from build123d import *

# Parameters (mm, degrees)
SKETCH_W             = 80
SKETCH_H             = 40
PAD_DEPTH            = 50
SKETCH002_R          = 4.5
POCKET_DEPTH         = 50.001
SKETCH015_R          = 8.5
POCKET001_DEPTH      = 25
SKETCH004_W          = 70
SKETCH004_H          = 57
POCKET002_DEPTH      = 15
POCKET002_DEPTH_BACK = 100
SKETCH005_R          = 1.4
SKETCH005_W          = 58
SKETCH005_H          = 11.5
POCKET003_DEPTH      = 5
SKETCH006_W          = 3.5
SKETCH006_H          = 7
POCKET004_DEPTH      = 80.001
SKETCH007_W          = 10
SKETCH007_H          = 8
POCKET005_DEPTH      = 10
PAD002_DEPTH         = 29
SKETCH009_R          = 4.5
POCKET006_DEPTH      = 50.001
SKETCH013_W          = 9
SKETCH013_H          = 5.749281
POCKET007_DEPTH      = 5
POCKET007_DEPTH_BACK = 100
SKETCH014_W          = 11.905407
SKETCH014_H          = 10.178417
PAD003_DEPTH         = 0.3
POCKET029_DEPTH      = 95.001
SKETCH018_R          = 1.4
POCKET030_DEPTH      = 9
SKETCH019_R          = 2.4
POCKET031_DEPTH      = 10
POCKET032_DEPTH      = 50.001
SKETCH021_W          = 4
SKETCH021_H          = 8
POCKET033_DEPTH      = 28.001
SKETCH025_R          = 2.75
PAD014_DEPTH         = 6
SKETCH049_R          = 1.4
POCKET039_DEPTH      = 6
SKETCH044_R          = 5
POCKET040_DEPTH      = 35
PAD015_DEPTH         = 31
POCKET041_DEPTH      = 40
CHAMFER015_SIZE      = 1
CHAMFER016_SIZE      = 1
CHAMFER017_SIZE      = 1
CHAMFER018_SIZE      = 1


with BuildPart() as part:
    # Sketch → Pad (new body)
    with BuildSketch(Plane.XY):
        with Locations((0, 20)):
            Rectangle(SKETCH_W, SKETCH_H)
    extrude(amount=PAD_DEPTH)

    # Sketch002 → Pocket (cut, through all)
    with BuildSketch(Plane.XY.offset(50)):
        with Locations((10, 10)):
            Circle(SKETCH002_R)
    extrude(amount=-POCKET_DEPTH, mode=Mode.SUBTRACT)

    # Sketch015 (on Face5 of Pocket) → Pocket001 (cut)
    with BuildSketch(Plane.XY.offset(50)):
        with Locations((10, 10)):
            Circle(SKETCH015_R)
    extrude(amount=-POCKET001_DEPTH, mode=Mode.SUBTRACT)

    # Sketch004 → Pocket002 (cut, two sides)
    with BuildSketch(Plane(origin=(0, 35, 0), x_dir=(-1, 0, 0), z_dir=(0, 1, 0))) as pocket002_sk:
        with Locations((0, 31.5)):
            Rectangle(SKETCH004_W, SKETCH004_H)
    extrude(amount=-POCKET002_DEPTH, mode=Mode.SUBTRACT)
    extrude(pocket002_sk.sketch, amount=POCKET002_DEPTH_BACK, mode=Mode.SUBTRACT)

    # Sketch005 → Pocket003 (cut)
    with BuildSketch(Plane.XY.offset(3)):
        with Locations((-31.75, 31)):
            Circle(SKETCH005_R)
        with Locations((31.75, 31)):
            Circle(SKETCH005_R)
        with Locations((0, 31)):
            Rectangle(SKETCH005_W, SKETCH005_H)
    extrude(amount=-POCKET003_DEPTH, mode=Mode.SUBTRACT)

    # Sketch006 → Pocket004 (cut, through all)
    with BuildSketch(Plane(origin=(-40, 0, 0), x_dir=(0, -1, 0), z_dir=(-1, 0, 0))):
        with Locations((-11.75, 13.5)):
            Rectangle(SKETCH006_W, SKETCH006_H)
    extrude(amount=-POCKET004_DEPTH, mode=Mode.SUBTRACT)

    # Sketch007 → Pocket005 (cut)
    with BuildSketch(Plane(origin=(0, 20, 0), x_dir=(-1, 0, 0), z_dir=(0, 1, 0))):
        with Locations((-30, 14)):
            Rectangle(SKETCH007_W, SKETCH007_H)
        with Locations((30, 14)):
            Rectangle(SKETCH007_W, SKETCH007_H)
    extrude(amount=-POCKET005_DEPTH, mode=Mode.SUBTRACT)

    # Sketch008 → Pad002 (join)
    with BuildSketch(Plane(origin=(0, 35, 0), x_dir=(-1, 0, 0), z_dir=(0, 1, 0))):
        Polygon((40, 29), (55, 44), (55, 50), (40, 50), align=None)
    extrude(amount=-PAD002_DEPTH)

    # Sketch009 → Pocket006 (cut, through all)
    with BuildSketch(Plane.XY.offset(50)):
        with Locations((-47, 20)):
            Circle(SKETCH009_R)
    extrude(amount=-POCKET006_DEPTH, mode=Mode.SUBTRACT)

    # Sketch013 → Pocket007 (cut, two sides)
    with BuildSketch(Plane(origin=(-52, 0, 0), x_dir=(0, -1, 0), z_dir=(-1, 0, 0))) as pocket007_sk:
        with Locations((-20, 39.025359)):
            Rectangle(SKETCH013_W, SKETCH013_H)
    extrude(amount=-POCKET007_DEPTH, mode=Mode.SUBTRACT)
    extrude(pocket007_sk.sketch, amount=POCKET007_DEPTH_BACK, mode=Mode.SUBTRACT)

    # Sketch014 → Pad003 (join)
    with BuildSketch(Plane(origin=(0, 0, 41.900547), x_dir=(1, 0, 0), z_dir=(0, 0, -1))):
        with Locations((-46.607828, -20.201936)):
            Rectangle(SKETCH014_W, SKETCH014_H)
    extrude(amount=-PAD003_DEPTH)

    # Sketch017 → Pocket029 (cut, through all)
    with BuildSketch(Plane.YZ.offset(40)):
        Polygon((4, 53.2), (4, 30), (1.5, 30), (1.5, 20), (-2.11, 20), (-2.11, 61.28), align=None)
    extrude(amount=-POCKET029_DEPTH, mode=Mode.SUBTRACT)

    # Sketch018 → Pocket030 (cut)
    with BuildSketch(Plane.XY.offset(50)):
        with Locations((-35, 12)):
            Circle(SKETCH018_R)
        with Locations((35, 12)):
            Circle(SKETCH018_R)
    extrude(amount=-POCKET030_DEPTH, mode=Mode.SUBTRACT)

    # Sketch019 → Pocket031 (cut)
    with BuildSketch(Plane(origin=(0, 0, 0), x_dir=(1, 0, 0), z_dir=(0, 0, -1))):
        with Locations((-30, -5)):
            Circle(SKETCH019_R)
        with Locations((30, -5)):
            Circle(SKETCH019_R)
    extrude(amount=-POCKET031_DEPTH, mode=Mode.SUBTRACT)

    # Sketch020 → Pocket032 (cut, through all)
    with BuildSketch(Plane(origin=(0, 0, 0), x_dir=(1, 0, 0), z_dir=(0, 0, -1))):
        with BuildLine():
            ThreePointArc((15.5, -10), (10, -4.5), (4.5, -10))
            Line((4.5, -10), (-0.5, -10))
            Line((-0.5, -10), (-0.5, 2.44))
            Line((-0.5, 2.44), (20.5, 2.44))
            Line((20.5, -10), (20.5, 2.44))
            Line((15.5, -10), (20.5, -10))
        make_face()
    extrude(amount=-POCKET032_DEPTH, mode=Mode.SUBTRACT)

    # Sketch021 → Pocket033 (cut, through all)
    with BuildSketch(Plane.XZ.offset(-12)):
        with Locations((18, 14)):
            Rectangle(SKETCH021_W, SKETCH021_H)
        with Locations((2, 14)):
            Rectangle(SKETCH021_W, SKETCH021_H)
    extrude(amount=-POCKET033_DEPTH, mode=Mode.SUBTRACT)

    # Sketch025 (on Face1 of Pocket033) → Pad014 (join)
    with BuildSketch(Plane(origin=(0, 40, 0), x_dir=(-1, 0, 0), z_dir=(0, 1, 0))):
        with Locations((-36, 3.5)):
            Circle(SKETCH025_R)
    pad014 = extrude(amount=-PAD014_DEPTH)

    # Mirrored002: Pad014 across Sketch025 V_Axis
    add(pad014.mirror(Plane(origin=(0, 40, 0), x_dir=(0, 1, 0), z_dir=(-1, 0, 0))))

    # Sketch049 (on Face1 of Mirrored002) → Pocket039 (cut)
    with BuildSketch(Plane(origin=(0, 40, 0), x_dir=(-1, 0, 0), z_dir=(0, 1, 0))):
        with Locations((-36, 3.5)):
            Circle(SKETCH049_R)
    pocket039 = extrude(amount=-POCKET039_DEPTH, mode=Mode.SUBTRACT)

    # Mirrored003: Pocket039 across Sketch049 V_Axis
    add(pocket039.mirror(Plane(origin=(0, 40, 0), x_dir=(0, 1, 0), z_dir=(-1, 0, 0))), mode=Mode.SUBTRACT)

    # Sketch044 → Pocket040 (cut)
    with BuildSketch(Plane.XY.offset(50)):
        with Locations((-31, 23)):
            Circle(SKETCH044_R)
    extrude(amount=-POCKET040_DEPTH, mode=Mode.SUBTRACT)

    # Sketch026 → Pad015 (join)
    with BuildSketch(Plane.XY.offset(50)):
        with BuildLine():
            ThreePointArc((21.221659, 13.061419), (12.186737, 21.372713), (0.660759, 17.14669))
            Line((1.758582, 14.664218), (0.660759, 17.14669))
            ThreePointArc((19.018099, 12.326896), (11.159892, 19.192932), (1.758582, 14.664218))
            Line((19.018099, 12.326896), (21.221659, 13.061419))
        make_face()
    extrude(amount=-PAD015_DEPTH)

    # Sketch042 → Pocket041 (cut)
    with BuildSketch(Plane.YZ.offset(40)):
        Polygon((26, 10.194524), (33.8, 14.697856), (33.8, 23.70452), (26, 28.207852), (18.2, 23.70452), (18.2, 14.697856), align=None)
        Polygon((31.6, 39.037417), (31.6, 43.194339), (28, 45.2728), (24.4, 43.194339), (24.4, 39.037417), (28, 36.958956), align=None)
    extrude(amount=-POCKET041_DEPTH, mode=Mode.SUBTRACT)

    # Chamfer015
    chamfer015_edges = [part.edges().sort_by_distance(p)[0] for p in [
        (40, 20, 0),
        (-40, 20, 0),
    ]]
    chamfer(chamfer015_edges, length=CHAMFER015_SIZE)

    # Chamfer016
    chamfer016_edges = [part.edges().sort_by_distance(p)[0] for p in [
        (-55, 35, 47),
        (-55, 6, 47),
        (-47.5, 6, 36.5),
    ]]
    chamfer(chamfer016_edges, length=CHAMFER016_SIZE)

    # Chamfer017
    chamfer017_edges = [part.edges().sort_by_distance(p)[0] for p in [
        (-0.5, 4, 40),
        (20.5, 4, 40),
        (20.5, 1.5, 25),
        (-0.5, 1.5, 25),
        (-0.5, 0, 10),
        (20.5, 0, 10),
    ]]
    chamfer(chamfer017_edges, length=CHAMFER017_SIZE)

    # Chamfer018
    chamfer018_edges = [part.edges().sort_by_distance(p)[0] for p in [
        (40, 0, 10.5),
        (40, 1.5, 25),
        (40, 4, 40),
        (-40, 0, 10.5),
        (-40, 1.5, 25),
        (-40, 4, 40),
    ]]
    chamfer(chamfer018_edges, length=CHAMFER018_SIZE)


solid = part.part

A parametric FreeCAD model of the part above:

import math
import FreeCAD as App
import Part
import Sketcher
from FreeCAD import Vector
Q = App.Units.Quantity


def edges_at(feature, points):
    """Names of the edges that pass closest to the given points."""
    edges = feature.Shape.Edges
    near = lambda p: min(range(len(edges)), key=lambda i: edges[i].distToShape(Part.Vertex(*p))[0])
    return sorted({f"Edge{near(p) + 1}" for p in points})


def add_polygon(sketch, points):
    """Adds a closed chain of lines whose ends are joined by coincident constraints."""
    first, n = sketch.GeometryCount, len(points)
    for a, b in zip(points, points[1:] + points[:1]):
        sketch.addGeometry(Part.LineSegment(App.Vector(*a, 0), App.Vector(*b, 0)), False)
    for i in range(n):
        sketch.addConstraint(Sketcher.Constraint("Coincident", first + i, 2, first + (i + 1) % n, 1))

doc = App.newDocument("Part")
body = doc.addObject("PartDesign::Body", "Body")

# Sketch on XY plane
sketch1 = doc.addObject("Sketcher::SketchObject", "Sketch")
body.addObject(sketch1)
sketch1.AttachmentSupport = (doc.XY_Plane, [""])
sketch1.MapMode = "FlatFace"
add_polygon(sketch1, [(-40, 40), (-40, 0), (40, 0), (40, 40)])  # lines 0-3
sketch1.addConstraint(Sketcher.Constraint("Vertical", 0))
sketch1.addConstraint(Sketcher.Constraint("Horizontal", 1))
sketch1.addConstraint(Sketcher.Constraint("Vertical", 2))
sketch1.addConstraint(Sketcher.Constraint("Horizontal", 3))
sketch1.addConstraint(Sketcher.Constraint("Symmetric", 0, 2, 1, 2, -1, 1))
sketch1.addConstraint(Sketcher.Constraint("DistanceX", 1, 1, 1, 2, 80.0))
sketch1.addConstraint(Sketcher.Constraint("DistanceY", 0, 2, 0, 1, 40.0))
pad1 = doc.addObject("PartDesign::Pad", "Pad")
body.addObject(pad1)
pad1.Profile = sketch1
pad1.Length = 50

# Sketch on XY plane
sketch2 = doc.addObject("Sketcher::SketchObject", "Sketch001")
body.addObject(sketch2)
sketch2.AttachmentSupport = (doc.XY_Plane, [""])
sketch2.MapMode = "FlatFace"
sketch2.AttachmentOffset = App.Placement(Vector(0, 0, 50), App.Rotation())
sketch2.addGeometry(Part.Circle(Vector(10, 10, 0), Vector(0, 0, 1), 4.5), False)
sketch2.addConstraint(Sketcher.Constraint("Diameter", 0, 9.0))
sketch2.addConstraint(Sketcher.Constraint("DistanceX", -1, 1, 0, 3, 10.0))
sketch2.addConstraint(Sketcher.Constraint("DistanceY", -1, 1, 0, 3, 10.0))
pocket1 = doc.addObject("PartDesign::Pocket", "Pocket")
body.addObject(pocket1)
pocket1.Profile = sketch2
pocket1.Type = "ThroughAll"

# Sketch on XY plane
sketch3 = doc.addObject("Sketcher::SketchObject", "Sketch002")
body.addObject(sketch3)
sketch3.AttachmentSupport = (doc.XY_Plane, [""])
sketch3.MapMode = "FlatFace"
sketch3.AttachmentOffset = App.Placement(Vector(0, 0, 50), App.Rotation())
sketch3.addGeometry(Part.Circle(Vector(10, 10, 0), Vector(0, 0, 1), 8), False)
sketch3.addConstraint(Sketcher.Constraint("Diameter", 0, 17.0))
sketch3.addConstraint(Sketcher.Constraint("DistanceX", -1, 1, 0, 3, 10.0))
sketch3.addConstraint(Sketcher.Constraint("DistanceY", -1, 1, 0, 3, 10.0))
pocket2 = doc.addObject("PartDesign::Pocket", "Pocket001")
body.addObject(pocket2)
pocket2.Profile = sketch3
pocket2.Length = 25

# Sketch on XZ plane
sketch4 = doc.addObject("Sketcher::SketchObject", "Sketch003")
body.addObject(sketch4)
sketch4.AttachmentSupport = (doc.XZ_Plane, [""])
sketch4.MapMode = "FlatFace"
sketch4.AttachmentOffset = App.Placement(Vector(0, 0, -35), App.Rotation())
add_polygon(sketch4, [(35, 60), (35, 3), (-35, 3), (-35, 60)])  # lines 0-3
sketch4.addConstraint(Sketcher.Constraint("Vertical", 0))
sketch4.addConstraint(Sketcher.Constraint("Horizontal", 1))
sketch4.addConstraint(Sketcher.Constraint("Vertical", 2))
sketch4.addConstraint(Sketcher.Constraint("Horizontal", 3))
sketch4.addConstraint(Sketcher.Constraint("DistanceX", 1, 2, 1, 1, 70.0))
sketch4.addConstraint(Sketcher.Constraint("DistanceY", 0, 2, 0, 1, 57.0))
sketch4.addConstraint(Sketcher.Constraint("DistanceX", -1, 1, 0, 2, 35.0))
sketch4.addConstraint(Sketcher.Constraint("DistanceY", -1, 1, 0, 2, 3.0))
pocket3 = doc.addObject("PartDesign::Pocket", "Pocket002")
body.addObject(pocket3)
pocket3.Profile = sketch4
pocket3.Type = "TwoLengths"
pocket3.Length = 15
pocket3.Length2 = 100
pocket3.Reversed = True

# Sketch on XY plane
sketch5 = doc.addObject("Sketcher::SketchObject", "Sketch004")
body.addObject(sketch5)
sketch5.AttachmentSupport = (doc.XY_Plane, [""])
sketch5.MapMode = "FlatFace"
sketch5.AttachmentOffset = App.Placement(Vector(0, 0, 3), App.Rotation())
sketch5.addGeometry(Part.Circle(Vector(-31.8, 31, 0), Vector(0, 0, 1), 1.4), False)  # 0
sketch5.addGeometry(Part.Circle(Vector(31.8, 31, 0), Vector(0, 0, 1), 1.4), False)  # 1
add_polygon(sketch5, [(-29, 36.8), (-29, 25.2), (29, 25.2), (29, 36.8)])  # lines 2-5
sketch5.addConstraint(Sketcher.Constraint("Vertical", 2))
sketch5.addConstraint(Sketcher.Constraint("Horizontal", 3))
sketch5.addConstraint(Sketcher.Constraint("Vertical", 4))
sketch5.addConstraint(Sketcher.Constraint("Horizontal", 5))
sketch5.addConstraint(Sketcher.Constraint("Equal", 0, 1))
sketch5.addConstraint(Sketcher.Constraint("Symmetric", 0, 3, 1, 3, -2))
sketch5.addConstraint(Sketcher.Constraint("Diameter", 0, 2.8))
sketch5.addConstraint(Sketcher.Constraint("DistanceX", 3, 1, 3, 2, 58.0))
sketch5.addConstraint(Sketcher.Constraint("DistanceY", 2, 2, 2, 1, 11.5))
sketch5.addConstraint(Sketcher.Constraint("DistanceY", -1, 1, 0, 3, 31.0))
sketch5.addConstraint(Sketcher.Constraint("DistanceX", 2, 2, -1, 1, 29.0))
sketch5.addConstraint(Sketcher.Constraint("DistanceX", 0, 3, 1, 3, 63.5))
sketch5.addConstraint(Sketcher.Constraint("DistanceY", -1, 1, 2, 2, 25.25))
pocket4 = doc.addObject("PartDesign::Pocket", "Pocket003")
body.addObject(pocket4)
pocket4.Profile = sketch5
pocket4.Length = 5

# Sketch on YZ plane
sketch6 = doc.addObject("Sketcher::SketchObject", "Sketch005")
body.addObject(sketch6)
sketch6.AttachmentSupport = (doc.YZ_Plane, [""])
sketch6.MapMode = "FlatFace"
sketch6.AttachmentOffset = App.Placement(Vector(0, 0, -40), App.Rotation())
add_polygon(sketch6, [(13.5, 17), (13.5, 10), (10, 10), (10, 17)])  # lines 0-3
sketch6.addConstraint(Sketcher.Constraint("Vertical", 0))
sketch6.addConstraint(Sketcher.Constraint("Horizontal", 1))
sketch6.addConstraint(Sketcher.Constraint("Vertical", 2))
sketch6.addConstraint(Sketcher.Constraint("Horizontal", 3))
sketch6.addConstraint(Sketcher.Constraint("DistanceY", 0, 2, 0, 1, 7.0))
sketch6.addConstraint(Sketcher.Constraint("DistanceX", 1, 2, 1, 1, 3.5))
sketch6.addConstraint(Sketcher.Constraint("DistanceY", -1, 1, 0, 2, 10.0))
sketch6.addConstraint(Sketcher.Constraint("DistanceX", -1, 1, 1, 2, 10.0))
pocket5 = doc.addObject("PartDesign::Pocket", "Pocket004")
body.addObject(pocket5)
pocket5.Profile = sketch6
pocket5.Type = "ThroughAll"
pocket5.Reversed = True

# Sketch on XZ plane
sketch7 = doc.addObject("Sketcher::SketchObject", "Sketch006")
body.addObject(sketch7)
sketch7.AttachmentSupport = (doc.XZ_Plane, [""])
sketch7.MapMode = "FlatFace"
sketch7.AttachmentOffset = App.Placement(Vector(0, 0, -20), App.Rotation())
add_polygon(sketch7, [(35, 18), (35, 10), (25, 10), (25, 18)])  # lines 0-3
add_polygon(sketch7, [(-25, 18), (-25, 10), (-35, 10), (-35, 18)])  # lines 4-7
sketch7.addConstraint(Sketcher.Constraint("Vertical", 0))
sketch7.addConstraint(Sketcher.Constraint("Horizontal", 1))
sketch7.addConstraint(Sketcher.Constraint("Vertical", 2))
sketch7.addConstraint(Sketcher.Constraint("Horizontal", 3))
sketch7.addConstraint(Sketcher.Constraint("Vertical", 4))
sketch7.addConstraint(Sketcher.Constraint("Horizontal", 5))
sketch7.addConstraint(Sketcher.Constraint("Vertical", 6))
sketch7.addConstraint(Sketcher.Constraint("Horizontal", 7))
sketch7.addConstraint(Sketcher.Constraint("Symmetric", 1, 2, 4, 2, -2))
sketch7.addConstraint(Sketcher.Constraint("Symmetric", 3, 2, 6, 2, -2))
sketch7.addConstraint(Sketcher.Constraint("DistanceX", 1, 2, 1, 1, 10.0))
sketch7.addConstraint(Sketcher.Constraint("DistanceY", 0, 2, 0, 1, 8.0))
sketch7.addConstraint(Sketcher.Constraint("DistanceX", -1, 1, 0, 2, 35.0))
sketch7.addConstraint(Sketcher.Constraint("DistanceY", -1, 1, 0, 2, 10.0))
pocket6 = doc.addObject("PartDesign::Pocket", "Pocket005")
body.addObject(pocket6)
pocket6.Profile = sketch7
pocket6.Length = 10
pocket6.Reversed = True

# Sketch on XZ plane
sketch8 = doc.addObject("Sketcher::SketchObject", "Sketch007")
body.addObject(sketch8)
sketch8.AttachmentSupport = (doc.XZ_Plane, [""])
sketch8.MapMode = "FlatFace"
sketch8.AttachmentOffset = App.Placement(Vector(0, 0, -35), App.Rotation())
add_polygon(sketch8, [(-40, 29), (-55, 44), (-55, 50), (-40, 50)])  # lines 0-3
sketch8.addConstraint(Sketcher.Constraint("Vertical", 1))
sketch8.addConstraint(Sketcher.Constraint("Horizontal", 2))
sketch8.addConstraint(Sketcher.Constraint("Vertical", 3))
sketch8.addConstraint(Sketcher.Constraint("DistanceX", 2, 1, 2, 2, 15.0))
sketch8.addConstraint(Sketcher.Constraint("DistanceY", 1, 1, 1, 2, 6.0))
sketch8.addConstraint(Sketcher.Constraint("DistanceY", 3, 2, 3, 1, 21.0))
sketch8.addConstraint(Sketcher.Constraint("DistanceX", 0, 2, -1, 1, 55.0))
sketch8.addConstraint(Sketcher.Constraint("DistanceY", -1, 1, 0, 2, 44.0))
pad2 = doc.addObject("PartDesign::Pad", "Pad001")
body.addObject(pad2)
pad2.Profile = sketch8
pad2.Length = 29

# Sketch on XY plane
sketch9 = doc.addObject("Sketcher::SketchObject", "Sketch008")
body.addObject(sketch9)
sketch9.AttachmentSupport = (doc.XY_Plane, [""])
sketch9.MapMode = "FlatFace"
sketch9.AttachmentOffset = App.Placement(Vector(0, 0, 50), App.Rotation())
sketch9.addGeometry(Part.Circle(Vector(-47, 20, 0), Vector(0, 0, 1), 4.5), False)
sketch9.addConstraint(Sketcher.Constraint("Diameter", 0, 9.0))
sketch9.addConstraint(Sketcher.Constraint("DistanceX", 0, 3, -1, 1, 47.0))
sketch9.addConstraint(Sketcher.Constraint("DistanceY", -1, 1, 0, 3, 20.0))
pocket7 = doc.addObject("PartDesign::Pocket", "Pocket006")
body.addObject(pocket7)
pocket7.Profile = sketch9
pocket7.Type = "ThroughAll"

# Sketch on YZ plane
sketch10 = doc.addObject("Sketcher::SketchObject", "Sketch009")
body.addObject(sketch10)
sketch10.AttachmentSupport = (doc.YZ_Plane, [""])
sketch10.MapMode = "FlatFace"
sketch10.AttachmentOffset = App.Placement(Vector(0, 0, -52), App.Rotation())
add_polygon(sketch10, [(24, 42), (24, 36), (16, 36), (16, 42)])  # lines 0-3
sketch10.addConstraint(Sketcher.Constraint("Vertical", 0))
sketch10.addConstraint(Sketcher.Constraint("Horizontal", 1))
sketch10.addConstraint(Sketcher.Constraint("Vertical", 2))
sketch10.addConstraint(Sketcher.Constraint("Horizontal", 3))
sketch10.addConstraint(Sketcher.Constraint("DistanceX", 1, 2, 1, 1, 9.0))
sketch10.addConstraint(Sketcher.Constraint("DistanceX", -1, 1, 0, 2, 24.5))
sketch10.addConstraint(Sketcher.Constraint("DistanceY", -1, 1, 2, 2, 41.899999))
sketch10.addConstraint(Sketcher.Constraint("DistanceY", 0, 2, 0, 1, 5.749281))
pocket8 = doc.addObject("PartDesign::Pocket", "Pocket007")
body.addObject(pocket8)
pocket8.Profile = sketch10
pocket8.Type = "TwoLengths"
pocket8.Length = 5
pocket8.Length2 = 100
pocket8.Reversed = True

# Sketch on XY plane
sketch11 = doc.addObject("Sketcher::SketchObject", "Sketch010")
body.addObject(sketch11)
sketch11.AttachmentSupport = (doc.XY_Plane, [""])
sketch11.MapMode = "FlatFace"
sketch11.AttachmentOffset = App.Placement(Vector(0, 0, 41.900547), App.Rotation())
add_polygon(sketch11, [(-53, 15), (-53, 25), (-41, 25), (-41, 15)])  # lines 0-3
sketch11.addConstraint(Sketcher.Constraint("Vertical", 0))
sketch11.addConstraint(Sketcher.Constraint("Horizontal", 1))
sketch11.addConstraint(Sketcher.Constraint("Vertical", 2))
sketch11.addConstraint(Sketcher.Constraint("Horizontal", 3))
sketch11.addConstraint(Sketcher.Constraint("DistanceX", 1, 1, 1, 2, 11.905407))
sketch11.addConstraint(Sketcher.Constraint("DistanceY", 0, 1, 0, 2, 10.178417))
sketch11.addConstraint(Sketcher.Constraint("DistanceX", 0, 2, -1, 1, 52.560532))
sketch11.addConstraint(Sketcher.Constraint("DistanceY", -1, 1, 0, 2, 25.291145))
pad3 = doc.addObject("PartDesign::Pad", "Pad002")
body.addObject(pad3)
pad3.Profile = sketch11
pad3.Length = 0.3

# Sketch on YZ plane
sketch12 = doc.addObject("Sketcher::SketchObject", "Sketch011")
body.addObject(sketch12)
sketch12.AttachmentSupport = (doc.YZ_Plane, [""])
sketch12.MapMode = "FlatFace"
sketch12.AttachmentOffset = App.Placement(Vector(0, 0, 40), App.Rotation())
add_polygon(sketch12, [(4, 30), (4, 53.2), (-2.1, 61.3), (-2.1, 20), (1.5, 20), (1.5, 30)])  # lines 0-5
sketch12.addConstraint(Sketcher.Constraint("Vertical", 0))
sketch12.addConstraint(Sketcher.Constraint("Vertical", 2))
sketch12.addConstraint(Sketcher.Constraint("Horizontal", 3))
sketch12.addConstraint(Sketcher.Constraint("Vertical", 4))
sketch12.addConstraint(Sketcher.Constraint("Horizontal", 5))
sketch12.addConstraint(Sketcher.Constraint("DistanceY", 4, 1, 4, 2, 10.0))
sketch12.addConstraint(Sketcher.Constraint("DistanceX", 5, 1, 5, 2, 2.5))
sketch12.addConstraint(Sketcher.Constraint("DistanceY", 0, 1, 0, 2, 23.2))
sketch12.addConstraint(Sketcher.Constraint("DistanceX", -1, 1, 0, 2, 4.0))
sketch12.addConstraint(Sketcher.Constraint("DistanceY", -1, 1, 2, 2, 20.0))
sketch12.addConstraint(Sketcher.Constraint("DistanceX", 3, 1, 3, 2, 3.61))
sketch12.addConstraint(Sketcher.Constraint("DistanceY", 2, 2, 2, 1, 41.28))
pocket9 = doc.addObject("PartDesign::Pocket", "Pocket008")
body.addObject(pocket9)
pocket9.Profile = sketch12
pocket9.Type = "ThroughAll"

# Sketch on XY plane
sketch13 = doc.addObject("Sketcher::SketchObject", "Sketch012")
body.addObject(sketch13)
sketch13.AttachmentSupport = (doc.XY_Plane, [""])
sketch13.MapMode = "FlatFace"
sketch13.AttachmentOffset = App.Placement(Vector(0, 0, 50), App.Rotation())
sketch13.addGeometry(Part.Circle(Vector(-35, 12, 0), Vector(0, 0, 1), 1.4), False)
sketch13.addGeometry(Part.Circle(Vector(35, 12, 0), Vector(0, 0, 1), 1.4), False)
sketch13.addConstraint(Sketcher.Constraint("Equal", 0, 1))
sketch13.addConstraint(Sketcher.Constraint("Symmetric", 0, 3, 1, 3, -2))
sketch13.addConstraint(Sketcher.Constraint("Diameter", 0, 2.8))
sketch13.addConstraint(Sketcher.Constraint("DistanceX", 0, 3, -1, 1, 35.0))
sketch13.addConstraint(Sketcher.Constraint("DistanceY", -1, 1, 0, 3, 12.0))
pocket10 = doc.addObject("PartDesign::Pocket", "Pocket009")
body.addObject(pocket10)
pocket10.Profile = sketch13
pocket10.Length = 9

# Sketch on XY plane
sketch14 = doc.addObject("Sketcher::SketchObject", "Sketch013")
body.addObject(sketch14)
sketch14.AttachmentSupport = (doc.XY_Plane, [""])
sketch14.MapMode = "FlatFace"
sketch14.addGeometry(Part.Circle(Vector(-30, 5, 0), Vector(0, 0, 1), 2.4), False)
sketch14.addGeometry(Part.Circle(Vector(30, 5, 0), Vector(0, 0, 1), 2.4), False)
sketch14.addConstraint(Sketcher.Constraint("Equal", 0, 1))
sketch14.addConstraint(Sketcher.Constraint("Symmetric", 0, 3, 1, 3, -2))
sketch14.addConstraint(Sketcher.Constraint("Diameter", 0, 4.8))
sketch14.addConstraint(Sketcher.Constraint("DistanceX", 0, 3, -1, 1, 30.0))
sketch14.addConstraint(Sketcher.Constraint("DistanceY", -1, 1, 0, 3, 5.0))
pocket11 = doc.addObject("PartDesign::Pocket", "Pocket010")
body.addObject(pocket11)
pocket11.Profile = sketch14
pocket11.Length = 10
pocket11.Reversed = True

# Sketch on XY plane
sketch15 = doc.addObject("Sketcher::SketchObject", "Sketch014")
body.addObject(sketch15)
sketch15.AttachmentSupport = (doc.XY_Plane, [""])
sketch15.MapMode = "FlatFace"
sketch15.addGeometry(Part.ArcOfCircle(Part.Circle(Vector(10, 10, 0), Vector(0, 0, 1), 6), math.radians(180), math.radians(360)), False)
sketch15.addGeometry(Part.LineSegment(Vector(16, 10, 0), Vector(20, 10, 0)), False)
sketch15.addGeometry(Part.LineSegment(Vector(20, 10, 0), Vector(20, -2, 0)), False)
sketch15.addGeometry(Part.LineSegment(Vector(20, -2, 0), Vector(0, -2, 0)), False)
sketch15.addGeometry(Part.LineSegment(Vector(0, -2, 0), Vector(0, 10, 0)), False)
sketch15.addGeometry(Part.LineSegment(Vector(0, 10, 0), Vector(4, 10, 0)), False)
sketch15.addConstraint(Sketcher.Constraint("Coincident", 0, 2, 1, 1))
sketch15.addConstraint(Sketcher.Constraint("Coincident", 1, 2, 2, 1))
sketch15.addConstraint(Sketcher.Constraint("Coincident", 2, 2, 3, 1))
sketch15.addConstraint(Sketcher.Constraint("Coincident", 3, 2, 4, 1))
sketch15.addConstraint(Sketcher.Constraint("Coincident", 4, 2, 5, 1))
sketch15.addConstraint(Sketcher.Constraint("Coincident", 5, 2, 0, 1))
sketch15.addConstraint(Sketcher.Constraint("Horizontal", 1))
sketch15.addConstraint(Sketcher.Constraint("Vertical", 2))
sketch15.addConstraint(Sketcher.Constraint("Horizontal", 3))
sketch15.addConstraint(Sketcher.Constraint("Vertical", 4))
sketch15.addConstraint(Sketcher.Constraint("Horizontal", 5))
sketch15.addConstraint(Sketcher.Constraint("Horizontal", 1, 2, 4, 2))
sketch15.addConstraint(Sketcher.Constraint("Equal", 1, 5))
sketch15.addConstraint(Sketcher.Constraint("Radius", 0, 5.5))
sketch15.addConstraint(Sketcher.Constraint("DistanceX", 1, 1, 1, 2, 5.0))
sketch15.addConstraint(Sketcher.Constraint("DistanceX", -1, 1, 0, 3, 10.0))
sketch15.addConstraint(Sketcher.Constraint("DistanceY", -1, 1, 0, 3, 10.0))
sketch15.addConstraint(Sketcher.Constraint("DistanceY", -1, 1, 0, 2, 10.0))
sketch15.addConstraint(Sketcher.Constraint("DistanceY", 2, 2, 2, 1, 12.44))
pocket12 = doc.addObject("PartDesign::Pocket", "Pocket011")
body.addObject(pocket12)
pocket12.Profile = sketch15
pocket12.Type = "ThroughAll"
pocket12.Reversed = True

# Sketch on XZ plane
sketch16 = doc.addObject("Sketcher::SketchObject", "Sketch015")
body.addObject(sketch16)
sketch16.AttachmentSupport = (doc.XZ_Plane, [""])
sketch16.MapMode = "FlatFace"
sketch16.AttachmentOffset = App.Placement(Vector(0, 0, -12), App.Rotation())
add_polygon(sketch16, [(16, 18), (16, 10), (20, 10), (20, 18)])  # lines 0-3
add_polygon(sketch16, [(0, 18), (0, 10), (4, 10), (4, 18)])  # lines 4-7
sketch16.addConstraint(Sketcher.Constraint("Vertical", 0))
sketch16.addConstraint(Sketcher.Constraint("Horizontal", 1))
sketch16.addConstraint(Sketcher.Constraint("Vertical", 2))
sketch16.addConstraint(Sketcher.Constraint("Horizontal", 3))
sketch16.addConstraint(Sketcher.Constraint("Vertical", 4))
sketch16.addConstraint(Sketcher.Constraint("Horizontal", 5))
sketch16.addConstraint(Sketcher.Constraint("Vertical", 6))
sketch16.addConstraint(Sketcher.Constraint("Horizontal", 7))
sketch16.addConstraint(Sketcher.Constraint("PointOnObject", 4, 2, -2))
sketch16.addConstraint(Sketcher.Constraint("Horizontal", 1, 2, 4, 2))
sketch16.addConstraint(Sketcher.Constraint("Horizontal", 3, 2, 6, 2))
sketch16.addConstraint(Sketcher.Constraint("Equal", 3, 5))
sketch16.addConstraint(Sketcher.Constraint("DistanceX", 1, 1, 1, 2, 4.0))
sketch16.addConstraint(Sketcher.Constraint("DistanceY", 0, 2, 0, 1, 8.0))
sketch16.addConstraint(Sketcher.Constraint("DistanceX", -1, 1, 0, 2, 16.0))
sketch16.addConstraint(Sketcher.Constraint("DistanceY", -1, 1, 0, 2, 10.0))
pocket13 = doc.addObject("PartDesign::Pocket", "Pocket012")
body.addObject(pocket13)
pocket13.Profile = sketch16
pocket13.Type = "ThroughAll"

# Sketch on XZ plane
sketch17 = doc.addObject("Sketcher::SketchObject", "Sketch016")
body.addObject(sketch17)
sketch17.AttachmentSupport = (doc.XZ_Plane, [""])
sketch17.MapMode = "FlatFace"
sketch17.AttachmentOffset = App.Placement(Vector(0, 0, -40), App.Rotation())
sketch17.addGeometry(Part.Circle(Vector(36, 3.5, 0), Vector(0, 0, 1), 2.8), False)
sketch17.addConstraint(Sketcher.Constraint("Diameter", 0, 5.5))
sketch17.addConstraint(Sketcher.Constraint("DistanceX", -1, 1, 0, 3, 36.0))
sketch17.addConstraint(Sketcher.Constraint("DistanceY", -1, 1, 0, 3, 3.5))
pad4 = doc.addObject("PartDesign::Pad", "Pad003")
body.addObject(pad4)
pad4.Profile = sketch17
pad4.Length = 6
doc.recompute()

mirrored = doc.addObject("PartDesign::Mirrored", "Mirrored")
body.addObject(mirrored)
mirrored.Originals = [pad4]
mirrored.MirrorPlane = (doc.YZ_Plane, [""])
body.Tip = mirrored

# Sketch on XZ plane
sketch18 = doc.addObject("Sketcher::SketchObject", "Sketch017")
body.addObject(sketch18)
sketch18.AttachmentSupport = (doc.XZ_Plane, [""])
sketch18.MapMode = "FlatFace"
sketch18.AttachmentOffset = App.Placement(Vector(0, 0, -40), App.Rotation())
sketch18.addGeometry(Part.Circle(Vector(36, 3.5, 0), Vector(0, 0, 1), 1.4), False)
sketch18.addConstraint(Sketcher.Constraint("Diameter", 0, 2.8))
sketch18.addConstraint(Sketcher.Constraint("DistanceX", -1, 1, 0, 3, 36.0))
sketch18.addConstraint(Sketcher.Constraint("DistanceY", -1, 1, 0, 3, 3.5))
pocket14 = doc.addObject("PartDesign::Pocket", "Pocket013")
body.addObject(pocket14)
pocket14.Profile = sketch18
pocket14.Length = 6
pocket14.Reversed = True
doc.recompute()

mirrored2 = doc.addObject("PartDesign::Mirrored", "Mirrored001")
body.addObject(mirrored2)
mirrored2.Originals = [pocket14]
mirrored2.MirrorPlane = (doc.YZ_Plane, [""])
body.Tip = mirrored2

# Sketch on XY plane
sketch19 = doc.addObject("Sketcher::SketchObject", "Sketch018")
body.addObject(sketch19)
sketch19.AttachmentSupport = (doc.XY_Plane, [""])
sketch19.MapMode = "FlatFace"
sketch19.AttachmentOffset = App.Placement(Vector(0, 0, 50), App.Rotation())
sketch19.addGeometry(Part.Circle(Vector(-31, 23, 0), Vector(0, 0, 1), 5), False)
sketch19.addConstraint(Sketcher.Constraint("Diameter", 0, 10.0))
sketch19.addConstraint(Sketcher.Constraint("DistanceX", 0, 3, -1, 1, 31.0))
sketch19.addConstraint(Sketcher.Constraint("DistanceY", -1, 1, 0, 3, 23.0))
pocket15 = doc.addObject("PartDesign::Pocket", "Pocket014")
body.addObject(pocket15)
pocket15.Profile = sketch19
pocket15.Length = 35

# Sketch on XY plane
sketch20 = doc.addObject("Sketcher::SketchObject", "Sketch019")
body.addObject(sketch20)
sketch20.AttachmentSupport = (doc.XY_Plane, [""])
sketch20.MapMode = "FlatFace"
sketch20.AttachmentOffset = App.Placement(Vector(0, 0, 50), App.Rotation())
sketch20.addGeometry(Part.ArcOfCircle(Part.Circle(Vector(9.9, 9.8, 0), Vector(0, 0, 1), 11.8), math.radians(16), math.radians(142)), False)
sketch20.addGeometry(Part.LineSegment(Vector(0.7, 17.1, 0), Vector(1.8, 14.7, 0)), False)
sketch20.addGeometry(Part.ArcOfCircle(Part.Circle(Vector(9.9, 9.8, 0), Vector(0, 0, 1), 9.5), math.radians(15), math.radians(149)), False)
sketch20.addGeometry(Part.LineSegment(Vector(19, 12.3, 0), Vector(21.2, 13.1, 0)), False)
sketch20.addConstraint(Sketcher.Constraint("Coincident", 0, 2, 1, 1))
sketch20.addConstraint(Sketcher.Constraint("Coincident", 1, 2, 2, 2))
sketch20.addConstraint(Sketcher.Constraint("Coincident", 2, 1, 3, 1))
sketch20.addConstraint(Sketcher.Constraint("Coincident", 3, 2, 0, 1))
sketch20.addConstraint(Sketcher.Constraint("Coincident", 2, 3, 0, 3))
sketch20.addConstraint(Sketcher.Constraint("Radius", 0, 11.790232))
sketch20.addConstraint(Sketcher.Constraint("Radius", 2, 9.470053))
sketch20.addConstraint(Sketcher.Constraint("DistanceX", -1, 1, 2, 1, 19.018099))
sketch20.addConstraint(Sketcher.Constraint("DistanceY", 3, 2, 1, 2, 1.602799))
sketch20.addConstraint(Sketcher.Constraint("DistanceX", 0, 2, 3, 2, 20.5609))
sketch20.addConstraint(Sketcher.Constraint("DistanceY", -1, 1, 2, 3, 9.808539))
sketch20.addConstraint(Sketcher.Constraint("DistanceX", -1, 1, 0, 2, 0.660759))
sketch20.addConstraint(Sketcher.Constraint("DistanceY", -1, 1, 0, 2, 17.14669))
pad5 = doc.addObject("PartDesign::Pad", "Pad004")
body.addObject(pad5)
pad5.Profile = sketch20
pad5.Length = 31
pad5.Reversed = True

# Sketch on YZ plane
sketch21 = doc.addObject("Sketcher::SketchObject", "Sketch020")
body.addObject(sketch21)
sketch21.AttachmentSupport = (doc.YZ_Plane, [""])
sketch21.MapMode = "FlatFace"
sketch21.AttachmentOffset = App.Placement(Vector(0, 0, 40), App.Rotation())
add_polygon(sketch21, [(26, 10.2), (33.8, 14.7), (33.8, 23.7), (26, 28.2), (18.2, 23.7), (18.2, 14.7)])  # lines 0-5
add_polygon(sketch21, [(31.6, 39), (31.6, 43.2), (28, 45.3), (24.4, 43.2), (24.4, 39), (28, 37)])  # lines 6-11
sketch21.addConstraint(Sketcher.Constraint("Vertical", 1))
sketch21.addConstraint(Sketcher.Constraint("Vertical", 4))
sketch21.addConstraint(Sketcher.Constraint("Vertical", 6))
sketch21.addConstraint(Sketcher.Constraint("Vertical", 9))
sketch21.addConstraint(Sketcher.Constraint("Parallel", 0, 3))
sketch21.addConstraint(Sketcher.Constraint("Parallel", 2, 5))
sketch21.addConstraint(Sketcher.Constraint("Parallel", 5, 7))
sketch21.addConstraint(Sketcher.Constraint("Parallel", 3, 8))
sketch21.addConstraint(Sketcher.Constraint("Parallel", 7, 10))
sketch21.addConstraint(Sketcher.Constraint("Parallel", 8, 11))
sketch21.addConstraint(Sketcher.Constraint("Horizontal", 1, 2, 3, 2))
sketch21.addConstraint(Sketcher.Constraint("Horizontal", 0, 2, 4, 2))
sketch21.addConstraint(Sketcher.Constraint("Horizontal", 6, 2, 8, 2))
sketch21.addConstraint(Sketcher.Constraint("Horizontal", 9, 2, 11, 2))
sketch21.addConstraint(Sketcher.Constraint("Vertical", 2, 2, 5, 2))
sketch21.addConstraint(Sketcher.Constraint("Angle", 0, Q("29.999999 deg")))
sketch21.addConstraint(Sketcher.Constraint("DistanceX", -1, 1, 2, 2, 26.0))
sketch21.addConstraint(Sketcher.Constraint("DistanceX", -1, 1, 7, 2, 28.0))
sketch21.addConstraint(Sketcher.Constraint("DistanceX", -1, 1, 0, 2, 33.8))
sketch21.addConstraint(Sketcher.Constraint("DistanceX", -1, 1, 6, 2, 31.6))
sketch21.addConstraint(Sketcher.Constraint("DistanceY", -1, 1, 7, 2, 45.2728))
sketch21.addConstraint(Sketcher.Constraint("DistanceY", 1, 1, 1, 2, 9.006664))
sketch21.addConstraint(Sketcher.Constraint("DistanceY", 6, 1, 6, 2, 4.156922))
sketch21.addConstraint(Sketcher.Constraint("DistanceY", -1, 1, 1, 2, 23.70452))
pocket16 = doc.addObject("PartDesign::Pocket", "Pocket015")
body.addObject(pocket16)
pocket16.Profile = sketch21
pocket16.Length = 40
doc.recompute()

chamfer = doc.addObject("PartDesign::Chamfer", "Chamfer")
body.addObject(chamfer)
chamfer.Base = (pocket16, edges_at(pocket16, [(40, 20, 0), (-40, 20, 0)]))
chamfer.Size = 1
doc.recompute()

chamfer2 = doc.addObject("PartDesign::Chamfer", "Chamfer001")
body.addObject(chamfer2)
chamfer2.Base = (chamfer, edges_at(chamfer, [(-55, 35, 47), (-55, 6, 47), (-47.5, 6, 36.5)]))
chamfer2.Size = 1
doc.recompute()

chamfer3 = doc.addObject("PartDesign::Chamfer", "Chamfer002")
body.addObject(chamfer3)
chamfer3.Base = (chamfer2, edges_at(chamfer2, [
    (-0.5, 4, 40),
    (20.5, 4, 40),
    (20.5, 1.5, 25),
    (-0.5, 1.5, 25),
    (-0.5, 0, 10),
    (20.5, 0, 10),
]))
chamfer3.Size = 1
doc.recompute()

chamfer4 = doc.addObject("PartDesign::Chamfer", "Chamfer003")
body.addObject(chamfer4)
chamfer4.Base = (chamfer3, edges_at(chamfer3, [
    (40, 0, 10.5),
    (40, 1.5, 25),
    (40, 4, 40),
    (-40, 0, 10.5),
    (-40, 1.5, 25),
    (-40, 4, 40),
]))
chamfer4.Size = 1

doc.recompute()
